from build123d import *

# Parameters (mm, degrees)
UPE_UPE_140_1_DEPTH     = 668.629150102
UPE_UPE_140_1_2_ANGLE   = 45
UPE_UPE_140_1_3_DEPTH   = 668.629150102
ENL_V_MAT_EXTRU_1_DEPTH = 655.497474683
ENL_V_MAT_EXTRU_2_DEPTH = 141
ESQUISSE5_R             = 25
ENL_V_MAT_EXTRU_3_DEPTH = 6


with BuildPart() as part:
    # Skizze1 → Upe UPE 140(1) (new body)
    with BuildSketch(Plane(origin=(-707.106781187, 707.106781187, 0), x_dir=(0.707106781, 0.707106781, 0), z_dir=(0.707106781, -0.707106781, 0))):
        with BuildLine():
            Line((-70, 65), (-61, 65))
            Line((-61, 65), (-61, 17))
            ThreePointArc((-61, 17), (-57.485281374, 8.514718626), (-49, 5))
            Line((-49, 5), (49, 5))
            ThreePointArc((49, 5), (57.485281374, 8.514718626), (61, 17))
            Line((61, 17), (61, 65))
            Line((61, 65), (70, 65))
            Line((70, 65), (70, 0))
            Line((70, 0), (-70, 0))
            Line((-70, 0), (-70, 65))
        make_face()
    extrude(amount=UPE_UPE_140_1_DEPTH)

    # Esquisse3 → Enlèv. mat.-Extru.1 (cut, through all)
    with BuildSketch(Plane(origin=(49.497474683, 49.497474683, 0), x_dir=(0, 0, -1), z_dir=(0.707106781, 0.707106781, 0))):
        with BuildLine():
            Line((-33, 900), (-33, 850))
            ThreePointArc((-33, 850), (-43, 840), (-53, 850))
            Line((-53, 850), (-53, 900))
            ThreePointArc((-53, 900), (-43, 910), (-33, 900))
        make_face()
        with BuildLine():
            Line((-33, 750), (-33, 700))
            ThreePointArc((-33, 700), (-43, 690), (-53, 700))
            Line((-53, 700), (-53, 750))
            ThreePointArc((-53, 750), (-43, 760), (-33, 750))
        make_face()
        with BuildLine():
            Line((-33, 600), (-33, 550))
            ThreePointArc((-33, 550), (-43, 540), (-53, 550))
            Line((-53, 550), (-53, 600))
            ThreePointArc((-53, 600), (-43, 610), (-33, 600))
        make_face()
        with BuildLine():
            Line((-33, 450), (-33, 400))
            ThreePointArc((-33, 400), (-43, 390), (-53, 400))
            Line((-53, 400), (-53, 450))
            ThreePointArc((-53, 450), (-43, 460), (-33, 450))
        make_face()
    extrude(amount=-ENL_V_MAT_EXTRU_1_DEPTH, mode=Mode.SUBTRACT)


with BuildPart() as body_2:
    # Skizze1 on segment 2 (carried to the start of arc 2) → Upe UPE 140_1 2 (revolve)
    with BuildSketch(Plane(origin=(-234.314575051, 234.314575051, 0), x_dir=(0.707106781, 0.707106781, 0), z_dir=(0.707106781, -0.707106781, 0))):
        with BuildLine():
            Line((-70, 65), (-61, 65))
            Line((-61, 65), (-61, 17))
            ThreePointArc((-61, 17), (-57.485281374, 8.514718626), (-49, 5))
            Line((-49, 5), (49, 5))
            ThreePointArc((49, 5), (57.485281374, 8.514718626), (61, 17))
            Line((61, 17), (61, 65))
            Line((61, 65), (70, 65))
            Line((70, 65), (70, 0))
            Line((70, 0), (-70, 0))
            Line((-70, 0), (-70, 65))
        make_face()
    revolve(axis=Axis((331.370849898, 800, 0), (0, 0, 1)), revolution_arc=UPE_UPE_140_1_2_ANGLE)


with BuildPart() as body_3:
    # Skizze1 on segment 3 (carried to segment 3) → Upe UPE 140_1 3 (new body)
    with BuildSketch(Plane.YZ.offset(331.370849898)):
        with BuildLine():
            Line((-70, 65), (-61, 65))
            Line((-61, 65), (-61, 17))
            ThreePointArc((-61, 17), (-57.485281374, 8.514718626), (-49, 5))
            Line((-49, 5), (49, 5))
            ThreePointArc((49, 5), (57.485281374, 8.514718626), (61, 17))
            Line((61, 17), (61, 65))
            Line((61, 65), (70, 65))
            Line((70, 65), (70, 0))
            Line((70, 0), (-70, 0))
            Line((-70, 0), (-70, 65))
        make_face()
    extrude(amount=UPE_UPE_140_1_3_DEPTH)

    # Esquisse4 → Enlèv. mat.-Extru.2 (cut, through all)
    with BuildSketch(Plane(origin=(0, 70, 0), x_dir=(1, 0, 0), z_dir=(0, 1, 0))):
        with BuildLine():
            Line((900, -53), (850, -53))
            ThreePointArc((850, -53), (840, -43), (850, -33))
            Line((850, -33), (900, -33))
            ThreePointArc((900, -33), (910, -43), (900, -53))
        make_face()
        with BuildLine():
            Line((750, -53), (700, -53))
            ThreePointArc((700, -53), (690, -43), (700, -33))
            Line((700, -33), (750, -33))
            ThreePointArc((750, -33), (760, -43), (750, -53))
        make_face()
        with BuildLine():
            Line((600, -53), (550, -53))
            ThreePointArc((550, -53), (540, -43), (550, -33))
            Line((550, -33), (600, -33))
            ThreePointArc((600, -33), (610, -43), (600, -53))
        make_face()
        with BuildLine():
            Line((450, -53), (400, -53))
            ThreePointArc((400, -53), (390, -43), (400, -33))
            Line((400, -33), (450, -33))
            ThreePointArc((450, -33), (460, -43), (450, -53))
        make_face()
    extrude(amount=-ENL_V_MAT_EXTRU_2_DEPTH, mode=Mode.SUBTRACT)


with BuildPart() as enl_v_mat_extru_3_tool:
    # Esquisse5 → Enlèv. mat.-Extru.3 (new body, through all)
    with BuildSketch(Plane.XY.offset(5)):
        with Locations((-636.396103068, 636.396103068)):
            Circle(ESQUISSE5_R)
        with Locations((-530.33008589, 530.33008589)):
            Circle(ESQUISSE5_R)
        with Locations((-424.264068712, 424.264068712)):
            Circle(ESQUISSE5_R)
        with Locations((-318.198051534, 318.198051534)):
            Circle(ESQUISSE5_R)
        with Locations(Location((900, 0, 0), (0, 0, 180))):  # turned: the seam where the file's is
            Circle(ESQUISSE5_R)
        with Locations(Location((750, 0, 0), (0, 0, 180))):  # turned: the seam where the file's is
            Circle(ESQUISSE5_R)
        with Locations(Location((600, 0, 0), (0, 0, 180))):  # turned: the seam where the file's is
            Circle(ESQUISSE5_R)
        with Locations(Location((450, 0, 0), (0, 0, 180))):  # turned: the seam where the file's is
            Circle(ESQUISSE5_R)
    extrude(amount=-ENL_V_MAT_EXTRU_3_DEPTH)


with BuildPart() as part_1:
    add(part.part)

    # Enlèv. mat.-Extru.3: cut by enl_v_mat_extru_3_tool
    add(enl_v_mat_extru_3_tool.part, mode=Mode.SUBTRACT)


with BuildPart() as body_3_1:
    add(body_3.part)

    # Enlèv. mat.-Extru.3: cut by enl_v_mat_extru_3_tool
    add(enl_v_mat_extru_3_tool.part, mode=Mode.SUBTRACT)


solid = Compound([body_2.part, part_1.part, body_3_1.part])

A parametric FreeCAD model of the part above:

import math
import FreeCAD as App
import Part
import Sketcher

V = App.Vector
Q = App.Units.Quantity

doc = App.newDocument("Part")
params = doc.addObject("Spreadsheet::Sheet", "Params")
for row, (alias, value) in enumerate([
    ("sketch1_radius", "12 mm"),
    ("sketch1_width", "9 mm"),
    ("sketch1_width2", "140 mm"),
    ("sketch1_height", "65 mm"),
    ("sketch1_height2", "48 mm"),
    ("pad1_length", "668.62915 mm"),
    ("sketch2_radius", "10 mm"),
    ("sketch2_height", "50 mm"),
    ("sketch3_radius", "12 mm"),
    ("sketch3_width", "9 mm"),
    ("sketch3_width2", "140 mm"),
    ("sketch3_height", "65 mm"),
    ("sketch3_height2", "48 mm"),
    ("revolution_angle", "45 deg"),
    ("sketch4_radius", "12 mm"),
    ("sketch4_width", "9 mm"),
    ("sketch4_width2", "140 mm"),
    ("sketch4_height", "65 mm"),
    ("sketch4_height2", "48 mm"),
    ("pad2_length", "668.62915 mm"),
    ("sketch5_radius", "10 mm"),
    ("sketch5_width", "50 mm"),
    ("sketch6_diameter", "50 mm"),
    ("pad3_length", "6 mm"),
], start=1):
    params.set(f"A{row}", alias)
    params.set(f"B{row}", "=" + value)
    params.setAlias(f"B{row}", alias)

body = doc.addObject("PartDesign::Body", "Body")

# Sketch on an angled plane
sketch1 = body.newObject("Sketcher::SketchObject", "Sketch")
sketch1.Placement = App.Placement(V(-707.106781, 707.106781, 0), App.Rotation(V(0.707106781, 0.707106781, 0), V(0, 0, 0.999999999), V(0.707106781, -0.707106781, 0), "ZXY"))
sketch1.addGeometry(Part.LineSegment(V(-61, 65, 0), V(-70, 65, 0)), False)
sketch1.addGeometry(Part.LineSegment(V(-70, 65, 0), V(-70, 0, 0)), False)
sketch1.addGeometry(Part.LineSegment(V(-70, 0, 0), V(70, 0, 0)), False)
sketch1.addGeometry(Part.LineSegment(V(70, 0, 0), V(70, 65, 0)), False)
sketch1.addGeometry(Part.LineSegment(V(70, 65, 0), V(61, 65, 0)), False)
sketch1.addGeometry(Part.LineSegment(V(61, 65, 0), V(61, 17, 0)), False)
sketch1.addGeometry(Part.ArcOfCircle(Part.Circle(V(49, 17, 0), V(0, 0, 1), 12), math.radians(-90), math.radians(0)), False)
sketch1.addGeometry(Part.LineSegment(V(49, 5, 0), V(-49, 5, 0)), False)
sketch1.addGeometry(Part.ArcOfCircle(Part.Circle(V(-49, 17, 0), V(0, 0, 1), 12), math.radians(-180), math.radians(-90)), False)
sketch1.addGeometry(Part.LineSegment(V(-61, 17, 0), V(-61, 65, 0)), False)
sketch1.addConstraint(Sketcher.Constraint("Coincident", 0, 2, 1, 1))
sketch1.addConstraint(Sketcher.Constraint("Coincident", 1, 2, 2, 1))
sketch1.addConstraint(Sketcher.Constraint("Coincident", 2, 2, 3, 1))
sketch1.addConstraint(Sketcher.Constraint("Coincident", 3, 2, 4, 1))
sketch1.addConstraint(Sketcher.Constraint("Coincident", 4, 2, 5, 1))
sketch1.addConstraint(Sketcher.Constraint("Tangent", 5, 2, 6, 2))
sketch1.addConstraint(Sketcher.Constraint("Tangent", 6, 1, 7, 1))
sketch1.addConstraint(Sketcher.Constraint("Tangent", 7, 2, 8, 2))
sketch1.addConstraint(Sketcher.Constraint("Tangent", 8, 1, 9, 1))
sketch1.addConstraint(Sketcher.Constraint("Coincident", 9, 2, 0, 1))
sketch1.addConstraint(Sketcher.Constraint("Horizontal", 0))
sketch1.addConstraint(Sketcher.Constraint("Vertical", 1))
sketch1.addConstraint(Sketcher.Constraint("Horizontal", 2))
sketch1.addConstraint(Sketcher.Constraint("Vertical", 3))
sketch1.addConstraint(Sketcher.Constraint("Horizontal", 4))
sketch1.addConstraint(Sketcher.Constraint("Vertical", 5))
sketch1.addConstraint(Sketcher.Constraint("Horizontal", 7))
sketch1.addConstraint(Sketcher.Constraint("Vertical", 9))
sketch1.addConstraint(Sketcher.Constraint("Equal", 6, 8))
sketch1.addConstraint(Sketcher.Constraint("Symmetric", 1, 2, 2, 2, -1, 1))
sketch1.addConstraint(Sketcher.Constraint("Symmetric", 4, 2, 9, 2, -2))
sketch1.addConstraint(Sketcher.Constraint("Radius", 6, Q("12 mm")))
sketch1.addConstraint(Sketcher.Constraint("DistanceX", 0, 2, 0, 1, Q("9 mm")))
sketch1.addConstraint(Sketcher.Constraint("DistanceX", 2, 1, 2, 2, Q("140 mm")))
sketch1.addConstraint(Sketcher.Constraint("DistanceY", 1, 2, 1, 1, Q("65 mm")))
sketch1.addConstraint(Sketcher.Constraint("DistanceY", 5, 2, 5, 1, Q("48 mm")))
sketch1.setExpression("Constraints[21]", "Params.sketch1_radius")
sketch1.setExpression("Constraints[22]", "Params.sketch1_width")
sketch1.setExpression("Constraints[23]", "Params.sketch1_width2")
sketch1.setExpression("Constraints[24]", "Params.sketch1_height")
sketch1.setExpression("Constraints[25]", "Params.sketch1_height2")
pad1 = body.newObject("PartDesign::Pad", "Pad")
pad1.Profile = sketch1
pad1.setExpression("Length", "Params.pad1_length")

# Sketch on an angled plane
sketch2 = body.newObject("Sketcher::SketchObject", "Sketch001")
sketch2.Placement = App.Placement(V(49.497475, 49.497475, 0), App.Rotation(V(0, 0, -1), V(-0.707106781, 0.707106781, 0), V(0.707106781, 0.707106781, 0), "ZXY"))
sketch2.addGeometry(Part.LineSegment(V(-33, 850, 0), V(-33, 900, 0)), False)
sketch2.addGeometry(Part.ArcOfCircle(Part.Circle(V(-43, 900, 0), V(0, 0, 1), 10), math.radians(0), math.radians(180)), False)
sketch2.addGeometry(Part.LineSegment(V(-53, 900, 0), V(-53, 850, 0)), False)
sketch2.addGeometry(Part.ArcOfCircle(Part.Circle(V(-43, 850, 0), V(0, 0, 1), 10), math.radians(180), math.radians(360)), False)
sketch2.addGeometry(Part.LineSegment(V(-33, 700, 0), V(-33, 750, 0)), False)
sketch2.addGeometry(Part.ArcOfCircle(Part.Circle(V(-43, 750, 0), V(0, 0, 1), 10), math.radians(0), math.radians(180)), False)
sketch2.addGeometry(Part.LineSegment(V(-53, 750, 0), V(-53, 700, 0)), False)
sketch2.addGeometry(Part.ArcOfCircle(Part.Circle(V(-43, 700, 0), V(0, 0, 1), 10), math.radians(180), math.radians(360)), False)
sketch2.addGeometry(Part.LineSegment(V(-33, 550, 0), V(-33, 600, 0)), False)
sketch2.addGeometry(Part.ArcOfCircle(Part.Circle(V(-43, 600, 0), V(0, 0, 1), 10), math.radians(0), math.radians(180)), False)
sketch2.addGeometry(Part.LineSegment(V(-53, 600, 0), V(-53, 550, 0)), False)
sketch2.addGeometry(Part.ArcOfCircle(Part.Circle(V(-43, 550, 0), V(0, 0, 1), 10), math.radians(180), math.radians(360)), False)
sketch2.addGeometry(Part.LineSegment(V(-33, 400, 0), V(-33, 450, 0)), False)
sketch2.addGeometry(Part.ArcOfCircle(Part.Circle(V(-43, 450, 0), V(0, 0, 1), 10), math.radians(0), math.radians(180)), False)
sketch2.addGeometry(Part.LineSegment(V(-53, 450, 0), V(-53, 400, 0)), False)
sketch2.addGeometry(Part.ArcOfCircle(Part.Circle(V(-43, 400, 0), V(0, 0, 1), 10), math.radians(180), math.radians(360)), False)
sketch2.addConstraint(Sketcher.Constraint("Tangent", 0, 2, 1, 1))
sketch2.addConstraint(Sketcher.Constraint("Tangent", 1, 2, 2, 1))
sketch2.addConstraint(Sketcher.Constraint("Tangent", 2, 2, 3, 1))
sketch2.addConstraint(Sketcher.Constraint("Tangent", 3, 2, 0, 1))
sketch2.addConstraint(Sketcher.Constraint("Tangent", 4, 2, 5, 1))
sketch2.addConstraint(Sketcher.Constraint("Tangent", 5, 2, 6, 1))
sketch2.addConstraint(Sketcher.Constraint("Tangent", 6, 2, 7, 1))
sketch2.addConstraint(Sketcher.Constraint("Tangent", 7, 2, 4, 1))
sketch2.addConstraint(Sketcher.Constraint("Tangent", 8, 2, 9, 1))
sketch2.addConstraint(Sketcher.Constraint("Tangent", 9, 2, 10, 1))
sketch2.addConstraint(Sketcher.Constraint("Tangent", 10, 2, 11, 1))
sketch2.addConstraint(Sketcher.Constraint("Tangent", 11, 2, 8, 1))
sketch2.addConstraint(Sketcher.Constraint("Tangent", 12, 2, 13, 1))
sketch2.addConstraint(Sketcher.Constraint("Tangent", 13, 2, 14, 1))
sketch2.addConstraint(Sketcher.Constraint("Tangent", 14, 2, 15, 1))
sketch2.addConstraint(Sketcher.Constraint("Tangent", 15, 2, 12, 1))
sketch2.addConstraint(Sketcher.Constraint("Vertical", 0))
sketch2.addConstraint(Sketcher.Constraint("Vertical", 2))
sketch2.addConstraint(Sketcher.Constraint("Vertical", 4))
sketch2.addConstraint(Sketcher.Constraint("Vertical", 6))
sketch2.addConstraint(Sketcher.Constraint("Vertical", 8))
sketch2.addConstraint(Sketcher.Constraint("Vertical", 10))
sketch2.addConstraint(Sketcher.Constraint("Vertical", 12))
sketch2.addConstraint(Sketcher.Constraint("Vertical", 14))
sketch2.addConstraint(Sketcher.Constraint("Equal", 3, 5))
sketch2.addConstraint(Sketcher.Constraint("Equal", 7, 9))
sketch2.addConstraint(Sketcher.Constraint("Equal", 11, 13))
sketch2.addConstraint(Sketcher.Constraint("Vertical", 3, 3, 5, 3))
sketch2.addConstraint(Sketcher.Constraint("Vertical", 7, 3, 9, 3))
sketch2.addConstraint(Sketcher.Constraint("Vertical", 11, 3, 13, 3))
sketch2.addConstraint(Sketcher.Constraint("Equal", 2, 4))
sketch2.addConstraint(Sketcher.Constraint("Equal", 6, 8))
sketch2.addConstraint(Sketcher.Constraint("Equal", 10, 12))
sketch2.addConstraint(Sketcher.Constraint("Radius", 1, Q("10 mm")))
sketch2.addConstraint(Sketcher.Constraint("DistanceY", 0, 1, 0, 2, Q("50 mm")))
sketch2.addConstraint(Sketcher.Constraint("DistanceX", 1, 3, -1, 1, Q("43 mm")))
sketch2.addConstraint(Sketcher.Constraint("DistanceY", -1, 1, 1, 3, Q("900 mm")))
sketch2.addConstraint(Sketcher.Constraint("DistanceY", -1, 1, 5, 3, Q("750 mm")))
sketch2.addConstraint(Sketcher.Constraint("DistanceY", -1, 1, 9, 3, Q("600 mm")))
sketch2.addConstraint(Sketcher.Constraint("DistanceY", -1, 1, 13, 3, Q("450 mm")))
sketch2.setExpression("Constraints[33]", "Params.sketch2_radius")
sketch2.setExpression("Constraints[34]", "Params.sketch2_height")
pocket1 = body.newObject("PartDesign::Pocket", "Pocket")
pocket1.Profile = sketch2
pocket1.Type = "ThroughAll"
body2 = doc.addObject("PartDesign::Body", "Body001")

# Sketch on an angled plane
sketch3 = body2.newObject("Sketcher::SketchObject", "Sketch002")
sketch3.Placement = App.Placement(V(-234.314575, 234.314575, 0), App.Rotation(V(0.707106781, 0.707106781, 0), V(0, 0, 0.999999999), V(0.707106781, -0.707106781, 0), "ZXY"))
sketch3.addGeometry(Part.LineSegment(V(-61, 65, 0), V(-70, 65, 0)), False)
sketch3.addGeometry(Part.LineSegment(V(-70, 65, 0), V(-70, 0, 0)), False)
sketch3.addGeometry(Part.LineSegment(V(-70, 0, 0), V(70, 0, 0)), False)
sketch3.addGeometry(Part.LineSegment(V(70, 0, 0), V(70, 65, 0)), False)
sketch3.addGeometry(Part.LineSegment(V(70, 65, 0), V(61, 65, 0)), False)
sketch3.addGeometry(Part.LineSegment(V(61, 65, 0), V(61, 17, 0)), False)
sketch3.addGeometry(Part.ArcOfCircle(Part.Circle(V(49, 17, 0), V(0, 0, 1), 12), math.radians(-90), math.radians(0)), False)
sketch3.addGeometry(Part.LineSegment(V(49, 5, 0), V(-49, 5, 0)), False)
sketch3.addGeometry(Part.ArcOfCircle(Part.Circle(V(-49, 17, 0), V(0, 0, 1), 12), math.radians(-180), math.radians(-90)), False)
sketch3.addGeometry(Part.LineSegment(V(-61, 17, 0), V(-61, 65, 0)), False)
sketch3.addGeometry(Part.LineSegment(V(800, 0, 0), V(800, 65, 0)), True)  # axis
sketch3.addConstraint(Sketcher.Constraint("Coincident", 0, 2, 1, 1))
sketch3.addConstraint(Sketcher.Constraint("Coincident", 1, 2, 2, 1))
sketch3.addConstraint(Sketcher.Constraint("Coincident", 2, 2, 3, 1))
sketch3.addConstraint(Sketcher.Constraint("Coincident", 3, 2, 4, 1))
sketch3.addConstraint(Sketcher.Constraint("Coincident", 4, 2, 5, 1))
sketch3.addConstraint(Sketcher.Constraint("Tangent", 5, 2, 6, 2))
sketch3.addConstraint(Sketcher.Constraint("Tangent", 6, 1, 7, 1))
sketch3.addConstraint(Sketcher.Constraint("Tangent", 7, 2, 8, 2))
sketch3.addConstraint(Sketcher.Constraint("Tangent", 8, 1, 9, 1))
sketch3.addConstraint(Sketcher.Constraint("Coincident", 9, 2, 0, 1))
sketch3.addConstraint(Sketcher.Constraint("Horizontal", 0))
sketch3.addConstraint(Sketcher.Constraint("Vertical", 1))
sketch3.addConstraint(Sketcher.Constraint("Horizontal", 2))
sketch3.addConstraint(Sketcher.Constraint("Vertical", 3))
sketch3.addConstraint(Sketcher.Constraint("Horizontal", 4))
sketch3.addConstraint(Sketcher.Constraint("Vertical", 5))
sketch3.addConstraint(Sketcher.Constraint("Horizontal", 7))
sketch3.addConstraint(Sketcher.Constraint("Vertical", 9))
sketch3.addConstraint(Sketcher.Constraint("Vertical", 10))
sketch3.addConstraint(Sketcher.Constraint("Equal", 6, 8))
sketch3.addConstraint(Sketcher.Constraint("Symmetric", 1, 2, 2, 2, -1, 1))
sketch3.addConstraint(Sketcher.Constraint("Symmetric", 4, 2, 9, 2, -2))
sketch3.addConstraint(Sketcher.Constraint("PointOnObject", 10, 1, -1))
sketch3.addConstraint(Sketcher.Constraint("Horizontal", 9, 2, 10, 2))
sketch3.addConstraint(Sketcher.Constraint("Radius", 6, Q("12 mm")))
sketch3.addConstraint(Sketcher.Constraint("DistanceX", 0, 2, 0, 1, Q("9 mm")))
sketch3.addConstraint(Sketcher.Constraint("DistanceX", 2, 1, 2, 2, Q("140 mm")))
sketch3.addConstraint(Sketcher.Constraint("DistanceY", 1, 2, 1, 1, Q("65 mm")))
sketch3.addConstraint(Sketcher.Constraint("DistanceY", 5, 2, 5, 1, Q("48 mm")))
sketch3.addConstraint(Sketcher.Constraint("DistanceX", -1, 1, 10, 1, Q("800 mm")))
sketch3.setExpression("Constraints[24]", "Params.sketch3_radius")
sketch3.setExpression("Constraints[25]", "Params.sketch3_width")
sketch3.setExpression("Constraints[26]", "Params.sketch3_width2")
sketch3.setExpression("Constraints[27]", "Params.sketch3_height")
sketch3.setExpression("Constraints[28]", "Params.sketch3_height2")
revolution = body2.newObject("PartDesign::Revolution", "Revolution")
revolution.Profile = sketch3
revolution.ReferenceAxis = (sketch3, ["Axis0"])
revolution.setExpression("Angle", "Params.revolution_angle")
body3 = doc.addObject("PartDesign::Body", "Body002")

# Sketch on YZ plane
sketch4 = body3.newObject("Sketcher::SketchObject", "Sketch003")
sketch4.AttachmentSupport = (doc.getObject("YZ_Plane002"), [""])
sketch4.MapMode = "FlatFace"
sketch4.AttachmentOffset = App.Placement(V(0, 0, 331.37085), App.Rotation())
sketch4.addGeometry(Part.LineSegment(V(-61, 65, 0), V(-70, 65, 0)), False)
sketch4.addGeometry(Part.LineSegment(V(-70, 65, 0), V(-70, 0, 0)), False)
sketch4.addGeometry(Part.LineSegment(V(-70, 0, 0), V(70, 0, 0)), False)
sketch4.addGeometry(Part.LineSegment(V(70, 0, 0), V(70, 65, 0)), False)
sketch4.addGeometry(Part.LineSegment(V(70, 65, 0), V(61, 65, 0)), False)
sketch4.addGeometry(Part.LineSegment(V(61, 65, 0), V(61, 17, 0)), False)
sketch4.addGeometry(Part.ArcOfCircle(Part.Circle(V(49, 17, 0), V(0, 0, 1), 12), math.radians(-90), math.radians(0)), False)
sketch4.addGeometry(Part.LineSegment(V(49, 5, 0), V(-49, 5, 0)), False)
sketch4.addGeometry(Part.ArcOfCircle(Part.Circle(V(-49, 17, 0), V(0, 0, 1), 12), math.radians(-180), math.radians(-90)), False)
sketch4.addGeometry(Part.LineSegment(V(-61, 17, 0), V(-61, 65, 0)), False)
sketch4.addConstraint(Sketcher.Constraint("Coincident", 0, 2, 1, 1))
sketch4.addConstraint(Sketcher.Constraint("Coincident", 1, 2, 2, 1))
sketch4.addConstraint(Sketcher.Constraint("Coincident", 2, 2, 3, 1))
sketch4.addConstraint(Sketcher.Constraint("Coincident", 3, 2, 4, 1))
sketch4.addConstraint(Sketcher.Constraint("Coincident", 4, 2, 5, 1))
sketch4.addConstraint(Sketcher.Constraint("Tangent", 5, 2, 6, 2))
sketch4.addConstraint(Sketcher.Constraint("Tangent", 6, 1, 7, 1))
sketch4.addConstraint(Sketcher.Constraint("Tangent", 7, 2, 8, 2))
sketch4.addConstraint(Sketcher.Constraint("Tangent", 8, 1, 9, 1))
sketch4.addConstraint(Sketcher.Constraint("Coincident", 9, 2, 0, 1))
sketch4.addConstraint(Sketcher.Constraint("Horizontal", 0))
sketch4.addConstraint(Sketcher.Constraint("Vertical", 1))
sketch4.addConstraint(Sketcher.Constraint("Horizontal", 2))
sketch4.addConstraint(Sketcher.Constraint("Vertical", 3))
sketch4.addConstraint(Sketcher.Constraint("Horizontal", 4))
sketch4.addConstraint(Sketcher.Constraint("Vertical", 5))
sketch4.addConstraint(Sketcher.Constraint("Horizontal", 7))
sketch4.addConstraint(Sketcher.Constraint("Vertical", 9))
sketch4.addConstraint(Sketcher.Constraint("Equal", 6, 8))
sketch4.addConstraint(Sketcher.Constraint("Symmetric", 1, 2, 2, 2, -1, 1))
sketch4.addConstraint(Sketcher.Constraint("Symmetric", 4, 2, 9, 2, -2))
sketch4.addConstraint(Sketcher.Constraint("Radius", 6, Q("12 mm")))
sketch4.addConstraint(Sketcher.Constraint("DistanceX", 0, 2, 0, 1, Q("9 mm")))
sketch4.addConstraint(Sketcher.Constraint("DistanceX", 2, 1, 2, 2, Q("140 mm")))
sketch4.addConstraint(Sketcher.Constraint("DistanceY", 1, 2, 1, 1, Q("65 mm")))
sketch4.addConstraint(Sketcher.Constraint("DistanceY", 5, 2, 5, 1, Q("48 mm")))
sketch4.setExpression("Constraints[21]", "Params.sketch4_radius")
sketch4.setExpression("Constraints[22]", "Params.sketch4_width")
sketch4.setExpression("Constraints[23]", "Params.sketch4_width2")
sketch4.setExpression("Constraints[24]", "Params.sketch4_height")
sketch4.setExpression("Constraints[25]", "Params.sketch4_height2")
pad2 = body3.newObject("PartDesign::Pad", "Pad001")
pad2.Profile = sketch4
pad2.setExpression("Length", "Params.pad2_length")

# Sketch on XZ plane
sketch5 = body3.newObject("Sketcher::SketchObject", "Sketch004")
sketch5.AttachmentSupport = (doc.getObject("XZ_Plane002"), [""])
sketch5.MapMode = "FlatFace"
sketch5.AttachmentOffset = App.Placement(V(0, 0, -70), App.Rotation())
sketch5.addGeometry(Part.LineSegment(V(850, 53, 0), V(900, 53, 0)), False)
sketch5.addGeometry(Part.ArcOfCircle(Part.Circle(V(900, 43, 0), V(0, 0, 1), 10), math.radians(-90), math.radians(90)), False)
sketch5.addGeometry(Part.LineSegment(V(900, 33, 0), V(850, 33, 0)), False)
sketch5.addGeometry(Part.ArcOfCircle(Part.Circle(V(850, 43, 0), V(0, 0, 1), 10), math.radians(90), math.radians(270)), False)
sketch5.addGeometry(Part.LineSegment(V(700, 53, 0), V(750, 53, 0)), False)
sketch5.addGeometry(Part.ArcOfCircle(Part.Circle(V(750, 43, 0), V(0, 0, 1), 10), math.radians(-90), math.radians(90)), False)
sketch5.addGeometry(Part.LineSegment(V(750, 33, 0), V(700, 33, 0)), False)
sketch5.addGeometry(Part.ArcOfCircle(Part.Circle(V(700, 43, 0), V(0, 0, 1), 10), math.radians(90), math.radians(270)), False)
sketch5.addGeometry(Part.LineSegment(V(550, 53, 0), V(600, 53, 0)), False)
sketch5.addGeometry(Part.ArcOfCircle(Part.Circle(V(600, 43, 0), V(0, 0, 1), 10), math.radians(-90), math.radians(90)), False)
sketch5.addGeometry(Part.LineSegment(V(600, 33, 0), V(550, 33, 0)), False)
sketch5.addGeometry(Part.ArcOfCircle(Part.Circle(V(550, 43, 0), V(0, 0, 1), 10), math.radians(90), math.radians(270)), False)
sketch5.addGeometry(Part.LineSegment(V(400, 53, 0), V(450, 53, 0)), False)
sketch5.addGeometry(Part.ArcOfCircle(Part.Circle(V(450, 43, 0), V(0, 0, 1), 10), math.radians(-90), math.radians(90)), False)
sketch5.addGeometry(Part.LineSegment(V(450, 33, 0), V(400, 33, 0)), False)
sketch5.addGeometry(Part.ArcOfCircle(Part.Circle(V(400, 43, 0), V(0, 0, 1), 10), math.radians(90), math.radians(270)), False)
sketch5.addConstraint(Sketcher.Constraint("Tangent", 0, 2, 1, 2))
sketch5.addConstraint(Sketcher.Constraint("Tangent", 1, 1, 2, 1))
sketch5.addConstraint(Sketcher.Constraint("Tangent", 2, 2, 3, 2))
sketch5.addConstraint(Sketcher.Constraint("Tangent", 3, 1, 0, 1))
sketch5.addConstraint(Sketcher.Constraint("Tangent", 4, 2, 5, 2))
sketch5.addConstraint(Sketcher.Constraint("Tangent", 5, 1, 6, 1))
sketch5.addConstraint(Sketcher.Constraint("Tangent", 6, 2, 7, 2))
sketch5.addConstraint(Sketcher.Constraint("Tangent", 7, 1, 4, 1))
sketch5.addConstraint(Sketcher.Constraint("Tangent", 8, 2, 9, 2))
sketch5.addConstraint(Sketcher.Constraint("Tangent", 9, 1, 10, 1))
sketch5.addConstraint(Sketcher.Constraint("Tangent", 10, 2, 11, 2))
sketch5.addConstraint(Sketcher.Constraint("Tangent", 11, 1, 8, 1))
sketch5.addConstraint(Sketcher.Constraint("Tangent", 12, 2, 13, 2))
sketch5.addConstraint(Sketcher.Constraint("Tangent", 13, 1, 14, 1))
sketch5.addConstraint(Sketcher.Constraint("Tangent", 14, 2, 15, 2))
sketch5.addConstraint(Sketcher.Constraint("Tangent", 15, 1, 12, 1))
sketch5.addConstraint(Sketcher.Constraint("Horizontal", 0))
sketch5.addConstraint(Sketcher.Constraint("Horizontal", 2))
sketch5.addConstraint(Sketcher.Constraint("Horizontal", 4))
sketch5.addConstraint(Sketcher.Constraint("Horizontal", 6))
sketch5.addConstraint(Sketcher.Constraint("Horizontal", 8))
sketch5.addConstraint(Sketcher.Constraint("Horizontal", 10))
sketch5.addConstraint(Sketcher.Constraint("Horizontal", 12))
sketch5.addConstraint(Sketcher.Constraint("Horizontal", 14))
sketch5.addConstraint(Sketcher.Constraint("Equal", 3, 5))
sketch5.addConstraint(Sketcher.Constraint("Equal", 7, 9))
sketch5.addConstraint(Sketcher.Constraint("Equal", 11, 13))
sketch5.addConstraint(Sketcher.Constraint("Horizontal", 3, 3, 5, 3))
sketch5.addConstraint(Sketcher.Constraint("Horizontal", 7, 3, 9, 3))
sketch5.addConstraint(Sketcher.Constraint("Horizontal", 11, 3, 13, 3))
sketch5.addConstraint(Sketcher.Constraint("Equal", 2, 4))
sketch5.addConstraint(Sketcher.Constraint("Equal", 6, 8))
sketch5.addConstraint(Sketcher.Constraint("Equal", 10, 12))
sketch5.addConstraint(Sketcher.Constraint("Radius", 1, Q("10 mm")))
sketch5.addConstraint(Sketcher.Constraint("DistanceX", 0, 1, 0, 2, Q("50 mm")))
sketch5.addConstraint(Sketcher.Constraint("DistanceX", -1, 1, 1, 3, Q("900 mm")))
sketch5.addConstraint(Sketcher.Constraint("DistanceY", -1, 1, 1, 3, Q("43 mm")))
sketch5.addConstraint(Sketcher.Constraint("DistanceX", -1, 1, 5, 3, Q("750 mm")))
sketch5.addConstraint(Sketcher.Constraint("DistanceX", -1, 1, 9, 3, Q("600 mm")))
sketch5.addConstraint(Sketcher.Constraint("DistanceX", -1, 1, 13, 3, Q("450 mm")))
sketch5.setExpression("Constraints[33]", "Params.sketch5_radius")
sketch5.setExpression("Constraints[34]", "Params.sketch5_width")
pocket2 = body3.newObject("PartDesign::Pocket", "Pocket001")
pocket2.Profile = sketch5
pocket2.Type = "ThroughAll"
pocket2.Reversed = True
body4 = doc.addObject("PartDesign::Body", "Body003")
body4.AllowCompound = True

# Sketch on XY plane
sketch6 = body4.newObject("Sketcher::SketchObject", "Sketch005")
sketch6.AttachmentSupport = (doc.getObject("XY_Plane003"), [""])
sketch6.MapMode = "FlatFace"
sketch6.AttachmentOffset = App.Placement(V(0, 0, 5), App.Rotation())
sketch6.addGeometry(Part.Circle(V(-636, 636, 0), V(0, 0, 1), 25), False)
sketch6.addGeometry(Part.Circle(V(-530, 530, 0), V(0, 0, 1), 25), False)
sketch6.addGeometry(Part.Circle(V(-424, 424, 0), V(0, 0, 1), 25), False)
sketch6.addGeometry(Part.Circle(V(-318, 318, 0), V(0, 0, 1), 25), False)
sketch6.addGeometry(Part.Circle(V(900, 0, 0), V(0, 0, 1), 25), False)
sketch6.addGeometry(Part.Circle(V(750, 0, 0), V(0, 0, 1), 25), False)
sketch6.addGeometry(Part.Circle(V(600, 0, 0), V(0, 0, 1), 25), False)
sketch6.addGeometry(Part.Circle(V(450, 0, 0), V(0, 0, 1), 25), False)
sketch6.addConstraint(Sketcher.Constraint("Equal", 0, 1))
sketch6.addConstraint(Sketcher.Constraint("Equal", 1, 2))
sketch6.addConstraint(Sketcher.Constraint("Equal", 2, 3))
sketch6.addConstraint(Sketcher.Constraint("Equal", 3, 4))
sketch6.addConstraint(Sketcher.Constraint("Equal", 4, 5))
sketch6.addConstraint(Sketcher.Constraint("Equal", 5, 6))
sketch6.addConstraint(Sketcher.Constraint("Equal", 6, 7))
sketch6.addConstraint(Sketcher.Constraint("PointOnObject", 4, 3, -1))
sketch6.addConstraint(Sketcher.Constraint("PointOnObject", 5, 3, -1))
sketch6.addConstraint(Sketcher.Constraint("PointOnObject", 6, 3, -1))
sketch6.addConstraint(Sketcher.Constraint("PointOnObject", 7, 3, -1))
sketch6.addConstraint(Sketcher.Constraint("Diameter", 0, Q("50 mm")))
sketch6.addConstraint(Sketcher.Constraint("DistanceX", -1, 1, 4, 3, Q("900 mm")))
sketch6.addConstraint(Sketcher.Constraint("DistanceX", -1, 1, 5, 3, Q("750 mm")))
sketch6.addConstraint(Sketcher.Constraint("DistanceX", -1, 1, 6, 3, Q("600 mm")))
sketch6.addConstraint(Sketcher.Constraint("DistanceX", -1, 1, 7, 3, Q("450 mm")))
sketch6.addConstraint(Sketcher.Constraint("DistanceX", 2, 3, -1, 1, Q("424.264069 mm")))
sketch6.addConstraint(Sketcher.Constraint("DistanceY", -1, 1, 2, 3, Q("424.264069 mm")))
sketch6.addConstraint(Sketcher.Constraint("DistanceX", 3, 3, -1, 1, Q("318.198052 mm")))
sketch6.addConstraint(Sketcher.Constraint("DistanceY", -1, 1, 3, 3, Q("318.198052 mm")))
sketch6.addConstraint(Sketcher.Constraint("DistanceX", 0, 3, 3, 3, Q("318.198052 mm")))
sketch6.addConstraint(Sketcher.Constraint("DistanceY", 3, 3, 0, 3, Q("318.198052 mm")))
sketch6.addConstraint(Sketcher.Constraint("DistanceX", 1, 3, -1, 1, Q("530.330086 mm")))
sketch6.addConstraint(Sketcher.Constraint("DistanceY", -1, 1, 1, 3, Q("530.330086 mm")))
sketch6.setExpression("Constraints[11]", "Params.sketch6_diameter")
pad3 = body4.newObject("PartDesign::Pad", "Pad002")
pad3.Profile = sketch6
pad3.setExpression("Length", "Params.pad3_length")
pad3.Reversed = True
doc.recompute()

body5 = doc.addObject("PartDesign::Body", "Body004")
body5.BaseFeature = body4
boolean = body.newObject("PartDesign::Boolean", "Boolean")
boolean.Type = "Cut"
boolean.addObjects([body5])
doc.recompute()

boolean2 = body3.newObject("PartDesign::Boolean", "Boolean001")
boolean2.Type = "Cut"
boolean2.addObjects([body4])

doc.recompute()
